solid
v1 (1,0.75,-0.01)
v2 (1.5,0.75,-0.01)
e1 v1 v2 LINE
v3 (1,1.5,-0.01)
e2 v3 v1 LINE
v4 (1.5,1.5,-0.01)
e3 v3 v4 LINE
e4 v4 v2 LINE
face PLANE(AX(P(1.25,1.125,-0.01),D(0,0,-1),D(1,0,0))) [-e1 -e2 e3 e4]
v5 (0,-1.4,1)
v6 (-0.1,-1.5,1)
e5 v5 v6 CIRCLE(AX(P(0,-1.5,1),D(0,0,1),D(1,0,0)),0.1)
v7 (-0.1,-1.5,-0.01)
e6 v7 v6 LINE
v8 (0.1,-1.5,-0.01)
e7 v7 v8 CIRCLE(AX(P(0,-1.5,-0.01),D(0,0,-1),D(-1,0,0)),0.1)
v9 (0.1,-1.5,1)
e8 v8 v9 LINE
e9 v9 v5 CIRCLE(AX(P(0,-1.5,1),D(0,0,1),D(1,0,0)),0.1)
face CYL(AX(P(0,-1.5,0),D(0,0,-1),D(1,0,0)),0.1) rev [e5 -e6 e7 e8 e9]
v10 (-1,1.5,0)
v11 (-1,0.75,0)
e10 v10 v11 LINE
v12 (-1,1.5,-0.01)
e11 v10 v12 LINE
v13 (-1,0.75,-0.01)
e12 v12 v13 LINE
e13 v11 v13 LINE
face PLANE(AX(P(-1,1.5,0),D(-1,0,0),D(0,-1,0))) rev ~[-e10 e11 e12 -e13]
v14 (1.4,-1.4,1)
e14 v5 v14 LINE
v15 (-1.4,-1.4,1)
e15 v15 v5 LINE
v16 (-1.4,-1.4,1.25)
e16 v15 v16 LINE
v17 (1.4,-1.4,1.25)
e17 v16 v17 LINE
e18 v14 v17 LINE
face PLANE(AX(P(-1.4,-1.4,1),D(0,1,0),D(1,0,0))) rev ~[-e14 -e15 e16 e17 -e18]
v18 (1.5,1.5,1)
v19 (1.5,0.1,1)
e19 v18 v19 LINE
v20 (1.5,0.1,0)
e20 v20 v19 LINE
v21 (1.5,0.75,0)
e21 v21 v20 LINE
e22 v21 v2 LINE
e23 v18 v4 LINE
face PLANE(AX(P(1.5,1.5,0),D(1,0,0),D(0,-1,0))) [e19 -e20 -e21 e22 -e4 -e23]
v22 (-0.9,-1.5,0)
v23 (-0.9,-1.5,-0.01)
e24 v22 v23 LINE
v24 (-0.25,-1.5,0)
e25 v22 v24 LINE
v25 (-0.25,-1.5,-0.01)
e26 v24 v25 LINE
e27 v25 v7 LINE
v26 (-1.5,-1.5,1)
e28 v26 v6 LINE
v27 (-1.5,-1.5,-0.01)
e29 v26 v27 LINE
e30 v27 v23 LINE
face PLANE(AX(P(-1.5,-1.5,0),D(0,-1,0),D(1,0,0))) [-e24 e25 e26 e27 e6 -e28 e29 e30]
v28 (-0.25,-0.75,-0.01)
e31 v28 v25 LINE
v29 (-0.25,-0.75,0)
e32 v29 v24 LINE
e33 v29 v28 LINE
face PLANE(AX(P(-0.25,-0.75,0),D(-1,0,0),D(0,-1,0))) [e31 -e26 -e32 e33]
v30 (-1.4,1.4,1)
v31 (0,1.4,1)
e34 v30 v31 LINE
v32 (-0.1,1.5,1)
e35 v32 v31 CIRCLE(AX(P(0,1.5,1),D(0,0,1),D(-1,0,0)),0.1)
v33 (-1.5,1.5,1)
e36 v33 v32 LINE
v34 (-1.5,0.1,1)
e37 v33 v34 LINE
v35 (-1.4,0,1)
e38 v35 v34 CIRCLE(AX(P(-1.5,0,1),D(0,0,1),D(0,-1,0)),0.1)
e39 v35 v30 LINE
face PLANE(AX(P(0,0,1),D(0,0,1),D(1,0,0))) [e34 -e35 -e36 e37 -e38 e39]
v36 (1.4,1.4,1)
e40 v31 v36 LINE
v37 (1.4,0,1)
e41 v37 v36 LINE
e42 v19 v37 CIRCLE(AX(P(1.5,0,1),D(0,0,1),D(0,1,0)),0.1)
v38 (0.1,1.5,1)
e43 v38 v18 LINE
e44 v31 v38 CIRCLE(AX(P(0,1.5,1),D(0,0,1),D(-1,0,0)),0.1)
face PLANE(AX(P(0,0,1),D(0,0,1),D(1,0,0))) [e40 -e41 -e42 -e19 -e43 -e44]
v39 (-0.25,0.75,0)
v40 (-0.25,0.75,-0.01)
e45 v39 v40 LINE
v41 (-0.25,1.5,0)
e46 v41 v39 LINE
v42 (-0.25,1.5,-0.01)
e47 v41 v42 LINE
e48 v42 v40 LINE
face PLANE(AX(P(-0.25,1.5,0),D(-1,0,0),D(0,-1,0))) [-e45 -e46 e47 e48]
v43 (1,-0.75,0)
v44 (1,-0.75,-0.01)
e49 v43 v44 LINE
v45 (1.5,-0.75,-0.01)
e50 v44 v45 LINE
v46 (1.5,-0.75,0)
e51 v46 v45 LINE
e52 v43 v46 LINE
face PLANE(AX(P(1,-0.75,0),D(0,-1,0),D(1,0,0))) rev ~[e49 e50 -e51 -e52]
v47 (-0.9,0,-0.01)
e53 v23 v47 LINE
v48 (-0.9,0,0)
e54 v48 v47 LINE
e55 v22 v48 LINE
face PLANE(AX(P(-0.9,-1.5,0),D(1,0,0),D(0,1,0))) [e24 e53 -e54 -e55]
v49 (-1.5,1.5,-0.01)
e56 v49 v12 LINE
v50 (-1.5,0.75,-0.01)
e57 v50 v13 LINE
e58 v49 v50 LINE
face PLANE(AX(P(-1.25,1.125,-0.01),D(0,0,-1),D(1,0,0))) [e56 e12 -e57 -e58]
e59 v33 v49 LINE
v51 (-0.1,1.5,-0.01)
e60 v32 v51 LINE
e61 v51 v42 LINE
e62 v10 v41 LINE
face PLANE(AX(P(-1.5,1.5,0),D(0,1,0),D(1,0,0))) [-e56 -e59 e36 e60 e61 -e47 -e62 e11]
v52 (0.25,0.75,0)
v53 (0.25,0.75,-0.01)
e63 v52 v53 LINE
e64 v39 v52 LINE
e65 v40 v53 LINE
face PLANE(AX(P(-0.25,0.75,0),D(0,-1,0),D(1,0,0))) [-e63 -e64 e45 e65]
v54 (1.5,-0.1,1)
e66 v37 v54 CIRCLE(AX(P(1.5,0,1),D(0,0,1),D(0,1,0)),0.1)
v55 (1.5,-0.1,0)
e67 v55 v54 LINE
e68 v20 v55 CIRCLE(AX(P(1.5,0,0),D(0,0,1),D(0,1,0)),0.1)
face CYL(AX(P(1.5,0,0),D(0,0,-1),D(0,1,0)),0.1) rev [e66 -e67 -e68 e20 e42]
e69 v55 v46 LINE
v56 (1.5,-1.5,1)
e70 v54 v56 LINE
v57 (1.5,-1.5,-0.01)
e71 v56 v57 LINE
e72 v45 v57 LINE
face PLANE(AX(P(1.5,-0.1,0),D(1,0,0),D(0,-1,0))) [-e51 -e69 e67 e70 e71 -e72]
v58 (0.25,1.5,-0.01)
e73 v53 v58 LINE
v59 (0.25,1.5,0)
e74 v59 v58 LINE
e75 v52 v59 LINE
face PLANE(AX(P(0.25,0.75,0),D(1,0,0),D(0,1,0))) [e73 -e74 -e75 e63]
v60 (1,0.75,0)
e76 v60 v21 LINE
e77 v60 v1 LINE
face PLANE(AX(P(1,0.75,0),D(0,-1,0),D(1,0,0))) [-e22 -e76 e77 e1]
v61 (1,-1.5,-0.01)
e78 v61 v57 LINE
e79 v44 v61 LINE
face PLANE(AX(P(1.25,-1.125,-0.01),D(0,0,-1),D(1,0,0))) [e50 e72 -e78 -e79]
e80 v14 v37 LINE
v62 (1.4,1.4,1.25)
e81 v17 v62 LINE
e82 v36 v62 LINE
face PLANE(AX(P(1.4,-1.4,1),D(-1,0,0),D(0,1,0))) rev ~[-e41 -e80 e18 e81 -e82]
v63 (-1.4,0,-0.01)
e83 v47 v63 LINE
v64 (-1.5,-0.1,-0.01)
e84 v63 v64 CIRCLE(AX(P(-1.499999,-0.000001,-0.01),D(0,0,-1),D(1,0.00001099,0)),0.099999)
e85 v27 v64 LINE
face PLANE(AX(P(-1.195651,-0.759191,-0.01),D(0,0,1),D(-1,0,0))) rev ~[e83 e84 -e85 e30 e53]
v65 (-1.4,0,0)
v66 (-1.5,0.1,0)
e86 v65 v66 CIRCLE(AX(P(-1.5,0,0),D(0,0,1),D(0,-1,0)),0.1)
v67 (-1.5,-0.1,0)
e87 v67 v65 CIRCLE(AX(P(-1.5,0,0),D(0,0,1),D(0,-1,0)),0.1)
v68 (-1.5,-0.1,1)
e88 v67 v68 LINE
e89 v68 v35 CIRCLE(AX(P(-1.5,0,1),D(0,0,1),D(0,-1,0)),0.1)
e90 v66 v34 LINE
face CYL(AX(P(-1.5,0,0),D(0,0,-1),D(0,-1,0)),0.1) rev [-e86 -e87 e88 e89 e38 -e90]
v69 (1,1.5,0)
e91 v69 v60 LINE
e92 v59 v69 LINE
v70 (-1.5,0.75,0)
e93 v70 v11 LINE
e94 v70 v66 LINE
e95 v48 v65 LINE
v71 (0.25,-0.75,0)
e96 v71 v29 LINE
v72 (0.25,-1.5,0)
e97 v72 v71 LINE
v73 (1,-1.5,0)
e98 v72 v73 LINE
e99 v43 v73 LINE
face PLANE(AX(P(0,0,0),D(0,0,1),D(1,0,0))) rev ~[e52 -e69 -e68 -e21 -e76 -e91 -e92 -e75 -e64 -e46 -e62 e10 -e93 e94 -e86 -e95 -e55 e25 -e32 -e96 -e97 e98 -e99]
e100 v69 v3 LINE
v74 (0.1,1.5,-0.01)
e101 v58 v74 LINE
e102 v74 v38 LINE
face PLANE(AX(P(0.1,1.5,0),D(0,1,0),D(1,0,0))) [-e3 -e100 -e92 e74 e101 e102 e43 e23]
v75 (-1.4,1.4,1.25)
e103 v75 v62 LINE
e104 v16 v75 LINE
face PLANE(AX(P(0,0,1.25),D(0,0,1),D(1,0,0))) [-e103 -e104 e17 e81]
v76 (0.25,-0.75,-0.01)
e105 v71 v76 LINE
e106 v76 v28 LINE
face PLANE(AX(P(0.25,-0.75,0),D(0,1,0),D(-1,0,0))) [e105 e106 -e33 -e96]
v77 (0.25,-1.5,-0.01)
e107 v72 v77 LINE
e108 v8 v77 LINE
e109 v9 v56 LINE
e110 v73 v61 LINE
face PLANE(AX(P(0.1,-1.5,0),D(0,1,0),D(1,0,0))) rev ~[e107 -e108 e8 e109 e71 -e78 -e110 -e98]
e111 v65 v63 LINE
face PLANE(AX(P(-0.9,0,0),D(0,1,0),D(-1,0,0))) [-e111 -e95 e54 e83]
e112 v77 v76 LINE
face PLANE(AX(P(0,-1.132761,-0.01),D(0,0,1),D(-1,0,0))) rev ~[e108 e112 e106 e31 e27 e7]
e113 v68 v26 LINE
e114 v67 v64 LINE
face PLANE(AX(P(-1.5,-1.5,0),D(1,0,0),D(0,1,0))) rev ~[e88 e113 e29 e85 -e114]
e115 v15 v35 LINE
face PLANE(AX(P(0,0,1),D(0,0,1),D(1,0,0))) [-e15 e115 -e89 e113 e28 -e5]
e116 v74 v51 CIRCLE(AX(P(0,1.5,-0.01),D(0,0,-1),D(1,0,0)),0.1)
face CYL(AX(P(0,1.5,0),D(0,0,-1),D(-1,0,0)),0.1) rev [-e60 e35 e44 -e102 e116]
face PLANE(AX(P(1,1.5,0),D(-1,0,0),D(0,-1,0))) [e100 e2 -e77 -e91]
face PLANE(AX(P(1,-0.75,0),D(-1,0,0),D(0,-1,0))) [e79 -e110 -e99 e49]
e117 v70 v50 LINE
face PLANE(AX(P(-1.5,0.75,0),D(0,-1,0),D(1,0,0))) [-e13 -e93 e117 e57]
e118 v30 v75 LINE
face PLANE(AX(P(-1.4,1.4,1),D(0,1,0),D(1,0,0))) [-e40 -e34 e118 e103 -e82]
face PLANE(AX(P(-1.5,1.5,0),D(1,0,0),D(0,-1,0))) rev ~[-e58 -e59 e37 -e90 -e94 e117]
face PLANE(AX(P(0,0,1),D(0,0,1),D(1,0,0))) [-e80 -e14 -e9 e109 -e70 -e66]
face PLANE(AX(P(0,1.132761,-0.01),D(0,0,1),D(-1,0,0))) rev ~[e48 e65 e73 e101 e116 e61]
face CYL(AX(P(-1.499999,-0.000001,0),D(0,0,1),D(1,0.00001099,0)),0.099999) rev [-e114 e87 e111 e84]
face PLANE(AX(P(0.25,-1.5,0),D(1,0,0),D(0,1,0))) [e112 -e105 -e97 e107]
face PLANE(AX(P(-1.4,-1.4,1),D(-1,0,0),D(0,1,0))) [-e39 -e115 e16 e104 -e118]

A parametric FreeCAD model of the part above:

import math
import FreeCAD as App
import Part
import Sketcher

V = App.Vector
Q = App.Units.Quantity


def add_polygon(sketch, points):
    """Adds a closed chain of lines whose ends are joined by coincident constraints."""
    first, n = sketch.GeometryCount, len(points)
    for a, b in zip(points, points[1:] + points[:1]):
        sketch.addGeometry(Part.LineSegment(App.Vector(*a, 0), App.Vector(*b, 0)), False)
    for i in range(n):
        sketch.addConstraint(Sketcher.Constraint("Coincident", first + i, 2, first + (i + 1) % n, 1))

doc = App.newDocument("Part")
params = doc.addObject("Spreadsheet::Sheet", "Params")
for row, (alias, value) in enumerate([
    ("sketch1_radius", "0.1 mm"),
    ("sketch1_width", "1.4 mm"),
    ("pad1_length", "1 mm"),
    ("sketch2_width", "2.8 mm"),
    ("pad2_length", "0.25 mm"),
    ("sketch3_radius", "0.099999 mm"),
    ("sketch3_width", "0.6 mm"),
    ("sketch3_height", "1.4 mm"),
    ("sketch3_height2", "0.75 mm"),
    ("pad3_length", "0.01 mm"),
], start=1):
    params.set(f"A{row}", alias)
    params.set(f"B{row}", "=" + value)
    params.setAlias(f"B{row}", alias)

body = doc.addObject("PartDesign::Body", "Body")

sketch1 = body.newObject("Sketcher::SketchObject", "Sketch")
sketch1.AttachmentSupport = (doc.getObject("XY_Plane"), [""])
sketch1.MapMode = "FlatFace"
sketch1.addGeometry(Part.LineSegment(V(-1.5, -1.5, 0), V(-0.1, -1.5, 0)), False)
sketch1.addGeometry(Part.ArcOfCircle(Part.Circle(V(0, -1.5, 0), V(0, 0, 1), 0.1), math.radians(0), math.radians(180)), False)
sketch1.addGeometry(Part.LineSegment(V(0.1, -1.5, 0), V(1.5, -1.5, 0)), False)
sketch1.addGeometry(Part.LineSegment(V(1.5, -1.5, 0), V(1.5, -0.1, 0)), False)
sketch1.addGeometry(Part.ArcOfCircle(Part.Circle(V(1.5, 0, 0), V(0, 0, 1), 0.1), math.radians(90), math.radians(270)), False)
sketch1.addGeometry(Part.LineSegment(V(1.5, 0.1, 0), V(1.5, 1.5, 0)), False)
sketch1.addGeometry(Part.LineSegment(V(1.5, 1.5, 0), V(0.1, 1.5, 0)), False)
sketch1.addGeometry(Part.ArcOfCircle(Part.Circle(V(0, 1.5, 0), V(0, 0, 1), 0.1), math.radians(180), math.radians(360)), False)
sketch1.addGeometry(Part.LineSegment(V(-0.1, 1.5, 0), V(-1.5, 1.5, 0)), False)
sketch1.addGeometry(Part.LineSegment(V(-1.5, 1.5, 0), V(-1.5, 0.1, 0)), False)
sketch1.addGeometry(Part.ArcOfCircle(Part.Circle(V(-1.5, 0, 0), V(0, 0, 1), 0.1), math.radians(-90), math.radians(90)), False)
sketch1.addGeometry(Part.LineSegment(V(-1.5, -0.1, 0), V(-1.5, -1.5, 0)), False)
sketch1.addConstraint(Sketcher.Constraint("Coincident", 0, 2, 1, 2))
sketch1.addConstraint(Sketcher.Constraint("Coincident", 1, 1, 2, 1))
sketch1.addConstraint(Sketcher.Constraint("Coincident", 2, 2, 3, 1))
sketch1.addConstraint(Sketcher.Constraint("Coincident", 3, 2, 4, 2))
sketch1.addConstraint(Sketcher.Constraint("Coincident", 4, 1, 5, 1))
sketch1.addConstraint(Sketcher.Constraint("Coincident", 5, 2, 6, 1))
sketch1.addConstraint(Sketcher.Constraint("Coincident", 6, 2, 7, 2))
sketch1.addConstraint(Sketcher.Constraint("Coincident", 7, 1, 8, 1))
sketch1.addConstraint(Sketcher.Constraint("Coincident", 8, 2, 9, 1))
sketch1.addConstraint(Sketcher.Constraint("Coincident", 9, 2, 10, 2))
sketch1.addConstraint(Sketcher.Constraint("Coincident", 10, 1, 11, 1))
sketch1.addConstraint(Sketcher.Constraint("Coincident", 11, 2, 0, 1))
sketch1.addConstraint(Sketcher.Constraint("Horizontal", 0))
sketch1.addConstraint(Sketcher.Constraint("Horizontal", 2))
sketch1.addConstraint(Sketcher.Constraint("Vertical", 3))
sketch1.addConstraint(Sketcher.Constraint("Vertical", 5))
sketch1.addConstraint(Sketcher.Constraint("Horizontal", 6))
sketch1.addConstraint(Sketcher.Constraint("Horizontal", 8))
sketch1.addConstraint(Sketcher.Constraint("Vertical", 9))
sketch1.addConstraint(Sketcher.Constraint("Vertical", 11))
sketch1.addConstraint(Sketcher.Constraint("Equal", 1, 4))
sketch1.addConstraint(Sketcher.Constraint("Equal", 4, 7))
sketch1.addConstraint(Sketcher.Constraint("Equal", 7, 10))
sketch1.addConstraint(Sketcher.Constraint("Symmetric", 1, 3, 7, 3, -1, 1))
sketch1.addConstraint(Sketcher.Constraint("Symmetric", 4, 3, 10, 3, -1, 1))
sketch1.addConstraint(Sketcher.Constraint("Symmetric", 2, 2, 8, 2, -1, 1))
sketch1.addConstraint(Sketcher.Constraint("Symmetric", 5, 2, 11, 2, -1, 1))
sketch1.addConstraint(Sketcher.Constraint("Symmetric", 0, 2, 1, 1, -2))
sketch1.addConstraint(Sketcher.Constraint("Symmetric", 4, 1, 9, 2, -2))
sketch1.addConstraint(Sketcher.Constraint("Horizontal", 1, 3, 0, 2))
sketch1.addConstraint(Sketcher.Constraint("Vertical", 4, 3, 2, 2))
sketch1.addConstraint(Sketcher.Constraint("Equal", 8, 3))
sketch1.addConstraint(Sketcher.Constraint("Radius", 1, Q("0.1 mm")))
sketch1.addConstraint(Sketcher.Constraint("DistanceX", 0, 1, 0, 2, Q("1.4 mm")))
sketch1.setExpression("Constraints[32]", "Params.sketch1_radius")
sketch1.setExpression("Constraints[33]", "Params.sketch1_width")
pad1 = body.newObject("PartDesign::Pad", "Pad")
pad1.Profile = sketch1
pad1.setExpression("Length", "Params.pad1_length")

sketch2 = body.newObject("Sketcher::SketchObject", "Sketch001")
sketch2.AttachmentSupport = (doc.getObject("XY_Plane"), [""])
sketch2.MapMode = "FlatFace"
sketch2.AttachmentOffset = App.Placement(V(0, 0, 1), App.Rotation())
add_polygon(sketch2, [(-1.4, 1.4), (-1.4, -1.4), (1.4, -1.4), (1.4, 1.4)])
sketch2.addConstraint(Sketcher.Constraint("Vertical", 0))
sketch2.addConstraint(Sketcher.Constraint("Horizontal", 1))
sketch2.addConstraint(Sketcher.Constraint("Vertical", 2))
sketch2.addConstraint(Sketcher.Constraint("Horizontal", 3))
sketch2.addConstraint(Sketcher.Constraint("Symmetric", 0, 2, 2, 2, -1, 1))
sketch2.addConstraint(Sketcher.Constraint("Equal", 3, 0))
sketch2.addConstraint(Sketcher.Constraint("DistanceX", 1, 1, 1, 2, Q("2.8 mm")))
sketch2.setExpression("Constraints[10]", "Params.sketch2_width")
pad2 = body.newObject("PartDesign::Pad", "Pad001")
pad2.Profile = sketch2
pad2.setExpression("Length", "Params.pad2_length")

sketch3 = body.newObject("Sketcher::SketchObject", "Sketch002")
sketch3.AttachmentSupport = (doc.getObject("XY_Plane"), [""])
sketch3.MapMode = "FlatFace"
sketch3.addGeometry(Part.LineSegment(V(-0.9, -1.5, 0), V(-1.5, -1.5, 0)), False)
sketch3.addGeometry(Part.LineSegment(V(-1.5, -1.5, 0), V(-1.5, -0.1, 0)), False)
sketch3.addGeometry(Part.ArcOfCircle(Part.Circle(V(-1.5, 0, 0), V(0, 0, 1), 0.1), math.radians(-90), math.radians(0)), False)
sketch3.addGeometry(Part.LineSegment(V(-1.4, 0, 0), V(-0.9, 0, 0)), False)
sketch3.addGeometry(Part.LineSegment(V(-0.9, 0, 0), V(-0.9, -1.5, 0)), False)
sketch3.addGeometry(Part.LineSegment(V(-0.25, -0.75, 0), V(0.25, -0.75, 0)), False)
sketch3.addGeometry(Part.LineSegment(V(0.25, -0.75, 0), V(0.25, -1.5, 0)), False)
sketch3.addGeometry(Part.LineSegment(V(0.25, -1.5, 0), V(0.1, -1.5, 0)), False)
sketch3.addGeometry(Part.ArcOfCircle(Part.Circle(V(0, -1.5, 0), V(0, 0, 1), 0.1), math.radians(0), math.radians(180)), False)
sketch3.addGeometry(Part.LineSegment(V(-0.1, -1.5, 0), V(-0.25, -1.5, 0)), False)
sketch3.addGeometry(Part.LineSegment(V(-0.25, -1.5, 0), V(-0.25, -0.75, 0)), False)
add_polygon(sketch3, [(1, -1.5), (1, -0.75), (1.5, -0.75), (1.5, -1.5)])
add_polygon(sketch3, [(1, 0.75), (1, 1.5), (1.5, 1.5), (1.5, 0.75)])
sketch3.addGeometry(Part.LineSegment(V(-0.25, 0.75, 0), V(-0.25, 1.5, 0)), False)
sketch3.addGeometry(Part.LineSegment(V(-0.25, 1.5, 0), V(-0.1, 1.5, 0)), False)
sketch3.addGeometry(Part.ArcOfCircle(Part.Circle(V(0, 1.5, 0), V(0, 0, 1), 0.1), math.radians(180), math.radians(360)), False)
sketch3.addGeometry(Part.LineSegment(V(0.1, 1.5, 0), V(0.25, 1.5, 0)), False)
sketch3.addGeometry(Part.LineSegment(V(0.25, 1.5, 0), V(0.25, 0.75, 0)), False)
sketch3.addGeometry(Part.LineSegment(V(0.25, 0.75, 0), V(-0.25, 0.75, 0)), False)
add_polygon(sketch3, [(-1.5, 0.75), (-1.5, 1.5), (-1, 1.5), (-1, 0.75)])
sketch3.addConstraint(Sketcher.Constraint("Coincident", 0, 2, 1, 1))
sketch3.addConstraint(Sketcher.Constraint("Coincident", 1, 2, 2, 1))
sketch3.addConstraint(Sketcher.Constraint("Coincident", 2, 2, 3, 1))
sketch3.addConstraint(Sketcher.Constraint("Coincident", 3, 2, 4, 1))
sketch3.addConstraint(Sketcher.Constraint("Coincident", 4, 2, 0, 1))
sketch3.addConstraint(Sketcher.Constraint("Coincident", 5, 2, 6, 1))
sketch3.addConstraint(Sketcher.Constraint("Coincident", 6, 2, 7, 1))
sketch3.addConstraint(Sketcher.Constraint("Coincident", 7, 2, 8, 1))
sketch3.addConstraint(Sketcher.Constraint("Coincident", 8, 2, 9, 1))
sketch3.addConstraint(Sketcher.Constraint("Coincident", 9, 2, 10, 1))
sketch3.addConstraint(Sketcher.Constraint("Coincident", 10, 2, 5, 1))
sketch3.addConstraint(Sketcher.Constraint("Coincident", 19, 2, 20, 1))
sketch3.addConstraint(Sketcher.Constraint("Coincident", 20, 2, 21, 1))
sketch3.addConstraint(Sketcher.Constraint("Coincident", 21, 2, 22, 1))
sketch3.addConstraint(Sketcher.Constraint("Coincident", 22, 2, 23, 1))
sketch3.addConstraint(Sketcher.Constraint("Coincident", 23, 2, 24, 1))
sketch3.addConstraint(Sketcher.Constraint("Coincident", 24, 2, 19, 1))
sketch3.addConstraint(Sketcher.Constraint("Horizontal", 0))
sketch3.addConstraint(Sketcher.Constraint("Vertical", 1))
sketch3.addConstraint(Sketcher.Constraint("Horizontal", 3))
sketch3.addConstraint(Sketcher.Constraint("Vertical", 4))
sketch3.addConstraint(Sketcher.Constraint("Horizontal", 5))
sketch3.addConstraint(Sketcher.Constraint("Vertical", 6))
sketch3.addConstraint(Sketcher.Constraint("Horizontal", 7))
sketch3.addConstraint(Sketcher.Constraint("Horizontal", 9))
sketch3.addConstraint(Sketcher.Constraint("Vertical", 10))
sketch3.addConstraint(Sketcher.Constraint("Vertical", 11))
sketch3.addConstraint(Sketcher.Constraint("Horizontal", 12))
sketch3.addConstraint(Sketcher.Constraint("Vertical", 13))
sketch3.addConstraint(Sketcher.Constraint("Horizontal", 14))
sketch3.addConstraint(Sketcher.Constraint("Vertical", 15))
sketch3.addConstraint(Sketcher.Constraint("Horizontal", 16))
sketch3.addConstraint(Sketcher.Constraint("Vertical", 17))
sketch3.addConstraint(Sketcher.Constraint("Horizontal", 18))
sketch3.addConstraint(Sketcher.Constraint("Vertical", 19))
sketch3.addConstraint(Sketcher.Constraint("Horizontal", 20))
sketch3.addConstraint(Sketcher.Constraint("Horizontal", 22))
sketch3.addConstraint(Sketcher.Constraint("Vertical", 23))
sketch3.addConstraint(Sketcher.Constraint("Horizontal", 24))
sketch3.addConstraint(Sketcher.Constraint("Vertical", 25))
sketch3.addConstraint(Sketcher.Constraint("Horizontal", 26))
sketch3.addConstraint(Sketcher.Constraint("Vertical", 27))
sketch3.addConstraint(Sketcher.Constraint("Horizontal", 28))
sketch3.addConstraint(Sketcher.Constraint("Equal", 2, 8))
sketch3.addConstraint(Sketcher.Constraint("Equal", 8, 21))
sketch3.addConstraint(Sketcher.Constraint("Symmetric", 8, 3, 21, 3, -1, 1))
sketch3.addConstraint(Sketcher.Constraint("Symmetric", 0, 2, 16, 2, -1, 1))
sketch3.addConstraint(Sketcher.Constraint("Symmetric", 6, 2, 19, 2, -1, 1))
sketch3.addConstraint(Sketcher.Constraint("Symmetric", 9, 2, 22, 2, -1, 1))
sketch3.addConstraint(Sketcher.Constraint("Symmetric", 13, 2, 25, 2, -1, 1))
sketch3.addConstraint(Sketcher.Constraint("Symmetric", 11, 2, 27, 2, -1, 1))
sketch3.addConstraint(Sketcher.Constraint("Symmetric", 7, 2, 8, 2, -2))
sketch3.addConstraint(Sketcher.Constraint("Symmetric", 0, 2, 13, 2, -2))
sketch3.addConstraint(Sketcher.Constraint("Symmetric", 18, 2, 27, 2, -2))
sketch3.addConstraint(Sketcher.Constraint("Symmetric", 5, 2, 23, 2, -1))
sketch3.addConstraint(Sketcher.Constraint("PointOnObject", 2, 3, -1))
sketch3.addConstraint(Sketcher.Constraint("PointOnObject", 2, 2, -1))
sketch3.addConstraint(Sketcher.Constraint("Horizontal", 8, 3, 0, 2))
sketch3.addConstraint(Sketcher.Constraint("Horizontal", 4, 2, 6, 2))
sketch3.addConstraint(Sketcher.Constraint("Horizontal", 10, 2, 11, 2))
sketch3.addConstraint(Sketcher.Constraint("Vertical", 2, 3, 0, 2))
sketch3.addConstraint(Sketcher.Constraint("Equal", 3, 5))
sketch3.addConstraint(Sketcher.Constraint("Equal", 5, 12))
sketch3.addConstraint(Sketcher.Constraint("Radius", 2, Q("0.099999 mm")))
sketch3.addConstraint(Sketcher.Constraint("DistanceX", 0, 2, 0, 1, Q("0.6 mm")))
sketch3.addConstraint(Sketcher.Constraint("DistanceY", 1, 1, 1, 2, Q("1.4 mm")))
sketch3.addConstraint(Sketcher.Constraint("DistanceX", -1, 1, 11, 2, Q("1 mm")))
sketch3.addConstraint(Sketcher.Constraint("DistanceY", 6, 2, 6, 1, Q("0.75 mm")))
sketch3.setExpression("Constraints[75]", "Params.sketch3_radius")
sketch3.setExpression("Constraints[76]", "Params.sketch3_width")
sketch3.setExpression("Constraints[77]", "Params.sketch3_height")
sketch3.setExpression("Constraints[79]", "Params.sketch3_height2")
pad3 = body.newObject("PartDesign::Pad", "Pad002")
pad3.Profile = sketch3
pad3.setExpression("Length", "Params.pad3_length")
pad3.Reversed = True

doc.recompute()
